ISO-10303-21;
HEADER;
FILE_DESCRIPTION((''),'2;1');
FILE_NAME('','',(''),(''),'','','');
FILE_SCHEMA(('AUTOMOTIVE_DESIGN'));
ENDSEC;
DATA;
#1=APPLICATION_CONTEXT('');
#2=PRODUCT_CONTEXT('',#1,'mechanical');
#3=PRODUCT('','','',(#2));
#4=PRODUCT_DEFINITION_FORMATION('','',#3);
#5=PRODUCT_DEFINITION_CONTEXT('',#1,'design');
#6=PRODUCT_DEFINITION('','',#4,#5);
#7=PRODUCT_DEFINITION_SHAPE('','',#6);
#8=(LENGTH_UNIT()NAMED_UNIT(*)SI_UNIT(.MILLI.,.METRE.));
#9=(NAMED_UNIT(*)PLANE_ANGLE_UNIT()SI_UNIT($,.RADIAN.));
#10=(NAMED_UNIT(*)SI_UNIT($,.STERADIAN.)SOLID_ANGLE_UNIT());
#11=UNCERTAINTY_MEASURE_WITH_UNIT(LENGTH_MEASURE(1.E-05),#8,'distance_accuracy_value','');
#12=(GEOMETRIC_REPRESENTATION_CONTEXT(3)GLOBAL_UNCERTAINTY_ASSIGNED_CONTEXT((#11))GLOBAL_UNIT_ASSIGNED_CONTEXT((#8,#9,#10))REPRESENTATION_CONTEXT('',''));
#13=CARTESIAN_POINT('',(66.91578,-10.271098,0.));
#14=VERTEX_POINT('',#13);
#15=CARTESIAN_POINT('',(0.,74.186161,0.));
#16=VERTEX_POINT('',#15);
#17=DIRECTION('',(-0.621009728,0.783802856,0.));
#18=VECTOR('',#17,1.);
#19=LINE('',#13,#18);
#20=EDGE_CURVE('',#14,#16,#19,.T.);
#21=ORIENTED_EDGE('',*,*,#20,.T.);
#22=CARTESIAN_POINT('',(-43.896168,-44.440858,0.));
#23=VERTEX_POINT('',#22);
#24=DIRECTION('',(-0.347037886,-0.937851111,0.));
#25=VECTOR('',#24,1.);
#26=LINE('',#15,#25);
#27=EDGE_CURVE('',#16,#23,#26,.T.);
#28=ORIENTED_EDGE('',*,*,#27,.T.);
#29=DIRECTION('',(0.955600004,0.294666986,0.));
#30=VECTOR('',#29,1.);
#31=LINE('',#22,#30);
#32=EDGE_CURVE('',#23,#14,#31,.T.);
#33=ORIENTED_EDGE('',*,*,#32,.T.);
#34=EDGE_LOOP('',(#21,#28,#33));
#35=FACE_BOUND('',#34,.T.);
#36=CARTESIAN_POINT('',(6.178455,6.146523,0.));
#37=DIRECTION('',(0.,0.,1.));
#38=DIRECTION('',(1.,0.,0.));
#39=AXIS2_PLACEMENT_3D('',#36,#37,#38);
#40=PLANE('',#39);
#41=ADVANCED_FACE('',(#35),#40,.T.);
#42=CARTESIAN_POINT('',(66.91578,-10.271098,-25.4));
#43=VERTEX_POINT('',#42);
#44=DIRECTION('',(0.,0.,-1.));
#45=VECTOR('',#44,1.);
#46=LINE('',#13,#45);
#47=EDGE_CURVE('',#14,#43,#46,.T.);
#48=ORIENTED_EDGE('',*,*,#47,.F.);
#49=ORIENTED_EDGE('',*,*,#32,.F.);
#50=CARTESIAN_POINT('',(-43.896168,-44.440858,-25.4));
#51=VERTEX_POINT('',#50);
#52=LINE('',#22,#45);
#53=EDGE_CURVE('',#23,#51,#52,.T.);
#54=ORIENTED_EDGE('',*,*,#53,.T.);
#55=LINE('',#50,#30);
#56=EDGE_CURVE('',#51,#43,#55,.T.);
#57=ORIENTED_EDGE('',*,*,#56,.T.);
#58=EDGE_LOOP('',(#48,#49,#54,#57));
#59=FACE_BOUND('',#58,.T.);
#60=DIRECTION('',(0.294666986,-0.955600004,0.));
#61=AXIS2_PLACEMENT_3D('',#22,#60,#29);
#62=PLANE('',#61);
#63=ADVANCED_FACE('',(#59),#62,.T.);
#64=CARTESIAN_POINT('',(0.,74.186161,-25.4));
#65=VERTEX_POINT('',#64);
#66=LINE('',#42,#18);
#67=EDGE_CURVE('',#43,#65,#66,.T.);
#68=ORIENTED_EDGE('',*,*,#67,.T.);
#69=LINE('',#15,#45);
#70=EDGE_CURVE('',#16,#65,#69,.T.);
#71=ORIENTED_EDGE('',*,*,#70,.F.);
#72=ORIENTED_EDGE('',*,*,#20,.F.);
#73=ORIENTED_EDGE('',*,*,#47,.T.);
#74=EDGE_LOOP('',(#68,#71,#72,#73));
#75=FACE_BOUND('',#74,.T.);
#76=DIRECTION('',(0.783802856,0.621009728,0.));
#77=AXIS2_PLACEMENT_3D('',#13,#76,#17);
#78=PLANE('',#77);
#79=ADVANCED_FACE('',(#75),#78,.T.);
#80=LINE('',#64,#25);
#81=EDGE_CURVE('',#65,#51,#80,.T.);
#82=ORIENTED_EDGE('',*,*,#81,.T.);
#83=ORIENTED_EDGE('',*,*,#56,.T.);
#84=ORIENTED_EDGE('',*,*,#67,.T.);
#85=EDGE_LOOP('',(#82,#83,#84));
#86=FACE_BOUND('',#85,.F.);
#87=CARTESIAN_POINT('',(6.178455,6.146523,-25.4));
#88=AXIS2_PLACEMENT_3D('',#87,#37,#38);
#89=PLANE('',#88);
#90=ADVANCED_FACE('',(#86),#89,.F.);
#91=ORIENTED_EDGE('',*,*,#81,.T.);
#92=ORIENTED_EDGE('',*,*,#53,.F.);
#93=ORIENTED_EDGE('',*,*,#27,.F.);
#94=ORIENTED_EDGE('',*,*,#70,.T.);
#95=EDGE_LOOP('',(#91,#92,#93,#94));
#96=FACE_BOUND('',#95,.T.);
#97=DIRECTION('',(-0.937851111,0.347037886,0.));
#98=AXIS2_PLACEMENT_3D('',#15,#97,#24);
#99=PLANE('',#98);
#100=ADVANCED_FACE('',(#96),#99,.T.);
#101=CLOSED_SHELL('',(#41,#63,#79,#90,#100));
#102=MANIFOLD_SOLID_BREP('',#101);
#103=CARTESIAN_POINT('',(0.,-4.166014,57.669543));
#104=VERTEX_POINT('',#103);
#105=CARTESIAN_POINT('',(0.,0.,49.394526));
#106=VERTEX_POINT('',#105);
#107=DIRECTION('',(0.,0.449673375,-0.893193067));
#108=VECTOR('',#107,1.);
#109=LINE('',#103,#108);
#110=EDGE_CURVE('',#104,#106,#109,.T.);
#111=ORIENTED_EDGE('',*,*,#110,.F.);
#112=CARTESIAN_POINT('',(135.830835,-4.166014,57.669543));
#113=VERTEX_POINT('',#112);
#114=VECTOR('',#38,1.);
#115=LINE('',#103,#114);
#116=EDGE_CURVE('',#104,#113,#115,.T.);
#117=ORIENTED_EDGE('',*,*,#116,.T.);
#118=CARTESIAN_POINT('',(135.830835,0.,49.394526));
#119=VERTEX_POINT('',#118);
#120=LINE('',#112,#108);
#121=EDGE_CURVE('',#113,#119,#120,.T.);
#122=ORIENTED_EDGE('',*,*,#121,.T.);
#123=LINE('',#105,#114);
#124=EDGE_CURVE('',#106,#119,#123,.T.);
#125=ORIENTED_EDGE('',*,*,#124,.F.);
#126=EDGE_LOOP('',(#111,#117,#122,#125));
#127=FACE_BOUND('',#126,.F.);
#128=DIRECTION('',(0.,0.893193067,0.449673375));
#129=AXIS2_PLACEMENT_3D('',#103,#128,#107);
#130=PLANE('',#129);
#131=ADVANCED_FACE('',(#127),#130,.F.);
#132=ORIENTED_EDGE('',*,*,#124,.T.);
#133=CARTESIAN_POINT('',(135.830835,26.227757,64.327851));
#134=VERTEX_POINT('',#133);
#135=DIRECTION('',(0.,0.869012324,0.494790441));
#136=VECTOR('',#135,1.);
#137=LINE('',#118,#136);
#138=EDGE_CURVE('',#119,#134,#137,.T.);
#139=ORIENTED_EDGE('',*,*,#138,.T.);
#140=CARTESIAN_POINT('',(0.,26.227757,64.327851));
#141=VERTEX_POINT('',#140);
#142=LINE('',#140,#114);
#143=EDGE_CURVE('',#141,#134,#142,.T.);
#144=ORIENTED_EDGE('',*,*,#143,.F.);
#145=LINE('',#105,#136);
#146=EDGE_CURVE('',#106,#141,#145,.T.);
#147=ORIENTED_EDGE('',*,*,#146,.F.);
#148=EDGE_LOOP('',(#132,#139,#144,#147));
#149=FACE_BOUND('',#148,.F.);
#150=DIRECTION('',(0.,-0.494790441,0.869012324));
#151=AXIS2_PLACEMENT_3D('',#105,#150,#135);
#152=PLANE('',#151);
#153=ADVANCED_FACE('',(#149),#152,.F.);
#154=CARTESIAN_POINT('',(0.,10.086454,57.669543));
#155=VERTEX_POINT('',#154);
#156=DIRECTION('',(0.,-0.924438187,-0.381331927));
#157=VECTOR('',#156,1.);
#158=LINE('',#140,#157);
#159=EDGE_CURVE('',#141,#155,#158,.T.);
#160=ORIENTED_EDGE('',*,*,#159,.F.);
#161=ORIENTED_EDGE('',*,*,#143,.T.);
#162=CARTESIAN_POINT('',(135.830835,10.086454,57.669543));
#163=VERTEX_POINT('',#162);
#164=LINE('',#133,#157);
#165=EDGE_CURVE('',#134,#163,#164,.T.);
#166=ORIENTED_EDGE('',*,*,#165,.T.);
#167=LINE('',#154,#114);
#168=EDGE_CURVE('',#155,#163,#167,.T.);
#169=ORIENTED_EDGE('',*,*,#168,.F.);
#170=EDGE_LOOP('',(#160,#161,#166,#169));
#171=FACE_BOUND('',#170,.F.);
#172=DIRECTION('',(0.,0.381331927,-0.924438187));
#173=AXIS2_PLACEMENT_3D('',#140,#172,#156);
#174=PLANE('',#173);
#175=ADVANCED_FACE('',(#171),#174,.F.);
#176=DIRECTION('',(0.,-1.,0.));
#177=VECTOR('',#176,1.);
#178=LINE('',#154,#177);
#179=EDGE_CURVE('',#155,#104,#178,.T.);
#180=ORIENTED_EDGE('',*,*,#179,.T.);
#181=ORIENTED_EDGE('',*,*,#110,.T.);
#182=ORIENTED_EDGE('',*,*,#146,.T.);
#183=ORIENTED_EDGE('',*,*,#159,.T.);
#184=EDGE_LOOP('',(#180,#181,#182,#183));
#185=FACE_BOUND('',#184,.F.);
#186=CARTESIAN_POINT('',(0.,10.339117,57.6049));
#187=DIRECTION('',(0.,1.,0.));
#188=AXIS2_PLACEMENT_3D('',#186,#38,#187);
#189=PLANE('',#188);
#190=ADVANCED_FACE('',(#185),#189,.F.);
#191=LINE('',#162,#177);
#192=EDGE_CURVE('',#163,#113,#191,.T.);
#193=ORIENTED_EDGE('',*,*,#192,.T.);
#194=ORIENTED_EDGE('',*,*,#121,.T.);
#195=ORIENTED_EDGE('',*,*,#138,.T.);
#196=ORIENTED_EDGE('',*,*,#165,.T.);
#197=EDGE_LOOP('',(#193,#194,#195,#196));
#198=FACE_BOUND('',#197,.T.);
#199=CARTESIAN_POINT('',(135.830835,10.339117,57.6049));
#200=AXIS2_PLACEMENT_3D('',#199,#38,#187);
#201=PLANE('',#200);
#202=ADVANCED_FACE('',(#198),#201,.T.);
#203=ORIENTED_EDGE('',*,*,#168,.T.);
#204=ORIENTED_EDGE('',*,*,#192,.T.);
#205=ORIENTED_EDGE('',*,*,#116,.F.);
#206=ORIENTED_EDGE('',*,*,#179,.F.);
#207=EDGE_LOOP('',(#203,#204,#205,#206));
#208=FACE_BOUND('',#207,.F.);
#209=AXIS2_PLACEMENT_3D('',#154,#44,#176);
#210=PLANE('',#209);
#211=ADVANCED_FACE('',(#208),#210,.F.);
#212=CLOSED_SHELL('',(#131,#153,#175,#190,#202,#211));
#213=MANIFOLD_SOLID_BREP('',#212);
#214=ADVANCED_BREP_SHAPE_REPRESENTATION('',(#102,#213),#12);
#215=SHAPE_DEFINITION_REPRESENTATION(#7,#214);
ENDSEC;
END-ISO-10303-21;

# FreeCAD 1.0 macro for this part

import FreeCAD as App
import Part
import Sketcher
Q = App.Units.Quantity

doc = App.newDocument("Part")
body = doc.addObject("PartDesign::Body", "Body")

sketch1 = body.newObject("Sketcher::SketchObject", "Sketch")
sketch1.AttachmentSupport = (doc.getObject("XY_Plane"), [""])
sketch1.MapMode = "FlatFace"
sketch1.addGeometry(Part.LineSegment(App.Vector(66.91578, -10.271098, 0), App.Vector(0, 74.186161, 0)), False)
sketch1.addGeometry(Part.LineSegment(App.Vector(0, 74.186161, 0), App.Vector(-43.896168, -44.440858, 0)), False)
sketch1.addGeometry(Part.LineSegment(App.Vector(-43.896168, -44.440858, 0), App.Vector(66.91578, -10.271098, 0)), False)
sketch1.addConstraint(Sketcher.Constraint("Coincident", 0, 2, 1, 1))
sketch1.addConstraint(Sketcher.Constraint("Coincident", 1, 2, 2, 1))
sketch1.addConstraint(Sketcher.Constraint("Coincident", 2, 2, 0, 1))
sketch1.addConstraint(Sketcher.Constraint("PointOnObject", 0, 2, -2))
sketch1.addConstraint(Sketcher.Constraint("Distance", 2, Q("115.960598 mm")))
sketch1.addConstraint(Sketcher.Constraint("Distance", 0, Q("107.753191 mm")))
sketch1.addConstraint(Sketcher.Constraint("DistanceY", -1, 1, 0, 2, Q("74.186161 mm")))
sketch1.addConstraint(Sketcher.Constraint("DistanceX", 1, 2, -1, 1, Q("43.896168 mm")))
sketch1.addConstraint(Sketcher.Constraint("DistanceX", -1, 1, 2, 2, Q("66.91578 mm")))
pad1 = body.newObject("PartDesign::Pad", "Pad")
pad1.Profile = sketch1
pad1.Length = Q("1 in")
pad1.Reversed = True
body2 = doc.addObject("PartDesign::Body", "Body001")

sketch2 = body2.newObject("Sketcher::SketchObject", "Sketch001")
sketch2.AttachmentSupport = (doc.getObject("YZ_Plane001"), [""])
sketch2.MapMode = "FlatFace"
sketch2.addGeometry(Part.LineSegment(App.Vector(0, 49.394526, 0), App.Vector(26.227757, 64.327851, 0)), False)
sketch2.addGeometry(Part.LineSegment(App.Vector(26.227757, 64.327851, 0), App.Vector(10.086454, 57.669543, 0)), False)
sketch2.addGeometry(Part.LineSegment(App.Vector(10.086454, 57.669543, 0), App.Vector(-4.166014, 57.669543, 0)), False)
sketch2.addGeometry(Part.LineSegment(App.Vector(-4.166014, 57.669543, 0), App.Vector(0, 49.394526, 0)), False)
sketch2.addConstraint(Sketcher.Constraint("Coincident", 0, 2, 1, 1))
sketch2.addConstraint(Sketcher.Constraint("Coincident", 1, 2, 2, 1))
sketch2.addConstraint(Sketcher.Constraint("Coincident", 2, 2, 3, 1))
sketch2.addConstraint(Sketcher.Constraint("Coincident", 3, 2, 0, 1))
sketch2.addConstraint(Sketcher.Constraint("Horizontal", 2))
sketch2.addConstraint(Sketcher.Constraint("PointOnObject", 3, 2, -2))
sketch2.addConstraint(Sketcher.Constraint("Distance", 0, Q("30.181111 mm")))
sketch2.addConstraint(Sketcher.Constraint("DistanceX", 2, 2, 2, 1, Q("14.252468 mm")))
sketch2.addConstraint(Sketcher.Constraint("DistanceY", -1, 1, 0, 2, Q("64.327851 mm")))
sketch2.addConstraint(Sketcher.Constraint("DistanceX", 2, 2, 0, 2, Q("30.393771 mm")))
sketch2.addConstraint(Sketcher.Constraint("Distance", 1, Q("17.460662 mm")))
sketch2.addConstraint(Sketcher.Constraint("Distance", 3, Q("9.264533 mm")))
pad2 = body2.newObject("PartDesign::Pad", "Pad001")
pad2.Profile = sketch2
pad2.Length = 135.830835

doc.recompute()
